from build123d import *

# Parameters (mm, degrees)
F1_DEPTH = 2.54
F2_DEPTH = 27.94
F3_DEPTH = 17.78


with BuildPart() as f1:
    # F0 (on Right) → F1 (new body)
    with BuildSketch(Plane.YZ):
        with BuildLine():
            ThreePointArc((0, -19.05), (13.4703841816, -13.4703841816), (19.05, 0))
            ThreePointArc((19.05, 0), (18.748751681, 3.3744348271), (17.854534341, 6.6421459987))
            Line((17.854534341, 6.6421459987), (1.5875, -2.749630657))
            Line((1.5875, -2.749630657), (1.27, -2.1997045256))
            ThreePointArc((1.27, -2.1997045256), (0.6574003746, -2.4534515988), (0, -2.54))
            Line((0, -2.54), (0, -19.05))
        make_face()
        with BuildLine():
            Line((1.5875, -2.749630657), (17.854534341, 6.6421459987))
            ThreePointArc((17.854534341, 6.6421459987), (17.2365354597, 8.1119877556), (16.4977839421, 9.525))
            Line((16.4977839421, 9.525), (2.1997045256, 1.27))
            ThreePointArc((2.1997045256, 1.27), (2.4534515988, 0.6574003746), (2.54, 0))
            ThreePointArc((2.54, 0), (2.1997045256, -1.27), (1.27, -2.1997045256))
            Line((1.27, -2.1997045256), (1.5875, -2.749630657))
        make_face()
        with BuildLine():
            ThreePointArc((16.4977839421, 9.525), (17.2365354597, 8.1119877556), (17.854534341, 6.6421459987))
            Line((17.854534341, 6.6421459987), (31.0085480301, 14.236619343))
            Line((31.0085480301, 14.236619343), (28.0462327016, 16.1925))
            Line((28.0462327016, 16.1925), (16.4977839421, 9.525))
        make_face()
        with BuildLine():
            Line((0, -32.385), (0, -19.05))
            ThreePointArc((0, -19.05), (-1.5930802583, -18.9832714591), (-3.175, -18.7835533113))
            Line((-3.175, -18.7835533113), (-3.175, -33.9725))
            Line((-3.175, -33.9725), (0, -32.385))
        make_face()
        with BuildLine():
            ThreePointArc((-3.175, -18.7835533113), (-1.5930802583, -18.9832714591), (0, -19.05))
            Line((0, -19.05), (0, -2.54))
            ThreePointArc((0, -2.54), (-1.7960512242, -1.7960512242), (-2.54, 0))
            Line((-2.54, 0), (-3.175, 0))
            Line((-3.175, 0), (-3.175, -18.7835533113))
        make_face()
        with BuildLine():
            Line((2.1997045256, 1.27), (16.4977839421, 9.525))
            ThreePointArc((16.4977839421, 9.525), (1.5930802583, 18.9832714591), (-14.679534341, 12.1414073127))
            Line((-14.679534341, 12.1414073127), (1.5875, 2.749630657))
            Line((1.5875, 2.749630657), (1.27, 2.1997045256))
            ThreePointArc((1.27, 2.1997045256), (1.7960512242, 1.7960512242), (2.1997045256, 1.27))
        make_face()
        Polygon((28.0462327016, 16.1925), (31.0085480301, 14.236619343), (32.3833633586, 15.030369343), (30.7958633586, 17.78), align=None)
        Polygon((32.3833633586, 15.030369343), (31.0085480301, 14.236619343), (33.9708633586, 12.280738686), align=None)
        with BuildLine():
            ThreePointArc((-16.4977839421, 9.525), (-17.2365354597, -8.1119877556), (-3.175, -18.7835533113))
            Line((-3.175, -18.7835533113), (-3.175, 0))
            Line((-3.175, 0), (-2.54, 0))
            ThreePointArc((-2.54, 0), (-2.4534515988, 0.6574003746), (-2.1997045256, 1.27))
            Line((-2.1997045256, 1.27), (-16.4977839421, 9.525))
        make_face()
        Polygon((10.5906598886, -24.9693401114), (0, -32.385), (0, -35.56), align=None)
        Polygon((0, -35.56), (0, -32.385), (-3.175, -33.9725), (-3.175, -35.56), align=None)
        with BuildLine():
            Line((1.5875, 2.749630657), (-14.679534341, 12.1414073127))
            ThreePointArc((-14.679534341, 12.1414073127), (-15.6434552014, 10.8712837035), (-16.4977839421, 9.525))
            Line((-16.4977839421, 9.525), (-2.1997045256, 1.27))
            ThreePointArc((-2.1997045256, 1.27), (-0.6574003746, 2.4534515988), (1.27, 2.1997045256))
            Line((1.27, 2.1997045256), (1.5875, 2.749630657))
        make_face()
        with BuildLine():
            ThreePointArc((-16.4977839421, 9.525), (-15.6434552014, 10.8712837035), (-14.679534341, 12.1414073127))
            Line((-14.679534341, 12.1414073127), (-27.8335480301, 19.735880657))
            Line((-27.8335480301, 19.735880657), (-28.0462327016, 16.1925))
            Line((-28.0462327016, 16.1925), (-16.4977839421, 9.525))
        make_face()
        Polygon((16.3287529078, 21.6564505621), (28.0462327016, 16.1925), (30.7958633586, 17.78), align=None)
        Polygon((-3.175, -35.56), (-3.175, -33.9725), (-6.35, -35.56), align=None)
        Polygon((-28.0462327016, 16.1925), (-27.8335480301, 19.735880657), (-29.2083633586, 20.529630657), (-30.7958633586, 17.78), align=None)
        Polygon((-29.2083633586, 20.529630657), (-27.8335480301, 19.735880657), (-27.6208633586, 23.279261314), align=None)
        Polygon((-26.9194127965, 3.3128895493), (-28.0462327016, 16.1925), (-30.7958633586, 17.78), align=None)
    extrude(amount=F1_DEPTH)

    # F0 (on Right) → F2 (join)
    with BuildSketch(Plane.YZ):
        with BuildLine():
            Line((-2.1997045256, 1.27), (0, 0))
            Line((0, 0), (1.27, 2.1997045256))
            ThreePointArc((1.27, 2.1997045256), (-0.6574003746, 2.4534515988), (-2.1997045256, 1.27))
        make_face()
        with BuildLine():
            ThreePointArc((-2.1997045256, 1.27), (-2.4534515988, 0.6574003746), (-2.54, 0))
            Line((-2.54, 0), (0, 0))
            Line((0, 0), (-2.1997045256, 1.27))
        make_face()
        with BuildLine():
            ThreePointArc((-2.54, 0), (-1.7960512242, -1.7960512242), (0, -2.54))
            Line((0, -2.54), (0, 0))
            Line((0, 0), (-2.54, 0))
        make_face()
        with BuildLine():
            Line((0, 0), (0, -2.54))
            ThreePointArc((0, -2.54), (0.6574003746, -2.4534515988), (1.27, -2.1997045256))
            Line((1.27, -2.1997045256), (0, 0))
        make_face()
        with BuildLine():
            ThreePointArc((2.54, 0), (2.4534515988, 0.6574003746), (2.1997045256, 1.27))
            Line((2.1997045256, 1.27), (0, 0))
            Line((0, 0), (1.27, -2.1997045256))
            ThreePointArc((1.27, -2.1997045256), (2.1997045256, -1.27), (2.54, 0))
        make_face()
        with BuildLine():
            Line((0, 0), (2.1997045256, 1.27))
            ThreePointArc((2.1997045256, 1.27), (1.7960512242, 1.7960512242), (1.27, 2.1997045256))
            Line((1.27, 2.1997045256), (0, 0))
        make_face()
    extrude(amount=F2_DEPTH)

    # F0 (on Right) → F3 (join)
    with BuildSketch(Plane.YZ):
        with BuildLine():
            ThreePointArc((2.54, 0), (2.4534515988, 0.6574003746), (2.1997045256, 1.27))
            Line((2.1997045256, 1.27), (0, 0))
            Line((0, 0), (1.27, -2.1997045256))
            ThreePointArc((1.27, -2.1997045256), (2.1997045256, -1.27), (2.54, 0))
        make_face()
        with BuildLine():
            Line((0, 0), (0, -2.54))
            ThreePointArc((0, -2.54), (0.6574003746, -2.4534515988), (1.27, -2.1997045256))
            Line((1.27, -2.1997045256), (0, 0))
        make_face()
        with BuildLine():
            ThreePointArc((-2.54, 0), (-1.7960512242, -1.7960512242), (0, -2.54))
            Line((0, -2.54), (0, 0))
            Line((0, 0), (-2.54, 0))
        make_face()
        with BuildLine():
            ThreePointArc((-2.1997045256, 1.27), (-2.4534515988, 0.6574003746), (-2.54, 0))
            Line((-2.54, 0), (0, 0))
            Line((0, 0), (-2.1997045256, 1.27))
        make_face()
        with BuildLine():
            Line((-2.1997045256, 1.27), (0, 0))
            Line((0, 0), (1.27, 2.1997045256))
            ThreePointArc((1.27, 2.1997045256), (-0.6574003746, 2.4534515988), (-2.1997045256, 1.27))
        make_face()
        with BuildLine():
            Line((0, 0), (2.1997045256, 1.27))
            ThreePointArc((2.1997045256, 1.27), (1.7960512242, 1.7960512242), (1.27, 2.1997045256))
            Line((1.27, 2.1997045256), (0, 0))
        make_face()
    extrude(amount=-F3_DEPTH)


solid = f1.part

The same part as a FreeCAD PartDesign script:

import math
import FreeCAD as App
import Part
import Sketcher

V = App.Vector
Q = App.Units.Quantity

doc = App.newDocument("Part")
params = doc.addObject("Spreadsheet::Sheet", "Params")
for row, (alias, value) in enumerate([
    ("sketch1_radius", "0.1 in"),
    ("sketch1_radius2", "0.75 in"),
    ("sketch1_width", "0.25 in"),
    ("sketch1_length", "0.25 in"),
    ("sketch1_height", "0.525 in"),
    ("pad1_length", "0.1 in"),
    ("sketch2_radius", "0.1 in"),
    ("pad2_length", "1.1 in"),
    ("sketch3_radius", "0.1 in"),
    ("pad3_length", "0.7 in"),
], start=1):
    params.set(f"A{row}", alias)
    params.set(f"B{row}", "=" + value)
    params.setAlias(f"B{row}", alias)

body = doc.addObject("PartDesign::Body", "Body")

# Sketch on YZ plane
sketch1 = doc.addObject("Sketcher::SketchObject", "Sketch")
body.addObject(sketch1)
sketch1.AttachmentSupport = (doc.YZ_Plane, [""])
sketch1.MapMode = "FlatFace"
sketch1.addGeometry([
    Part.ArcOfCircle(Part.Circle(V(0, 0, 0), V(0, 0, 1), 19.1), math.radians(-90), math.radians(0)),  # 0
    Part.ArcOfCircle(Part.Circle(V(0, 0, 0), V(0, 0, 1), 19.1), math.radians(0), math.radians(20)),  # 1
    Part.LineSegment(V(17.9, 6.6, 0), V(31, 14.2, 0)),  # 2
    Part.LineSegment(V(31, 14.2, 0), V(34, 12.3, 0)),  # 3
    Part.LineSegment(V(34, 12.3, 0), V(30.8, 17.8, 0)),  # 4
    Part.LineSegment(V(30.8, 17.8, 0), V(16.3, 21.7, 0)),  # 5
    Part.LineSegment(V(16.3, 21.7, 0), V(28, 16.2, 0)),  # 6
    Part.LineSegment(V(28, 16.2, 0), V(16.5, 9.5, 0)),  # 7
    Part.ArcOfCircle(Part.Circle(V(0, 0, 0), V(0, 0, 1), 19.1), math.radians(30), math.radians(140)),  # 8
    Part.LineSegment(V(-14.7, 12.1, 0), V(-27.8, 19.7, 0)),  # 9
    Part.LineSegment(V(-27.8, 19.7, 0), V(-27.6, 23.3, 0)),  # 10
    Part.LineSegment(V(-27.6, 23.3, 0), V(-30.8, 17.8, 0)),  # 11
    Part.LineSegment(V(-30.8, 17.8, 0), V(-26.9, 3.3, 0)),  # 12
    Part.LineSegment(V(-26.9, 3.3, 0), V(-28, 16.2, 0)),  # 13
    Part.LineSegment(V(-28, 16.2, 0), V(-16.5, 9.5, 0)),  # 14
    Part.ArcOfCircle(Part.Circle(V(0, 0, 0), V(0, 0, 1), 19.1), math.radians(150), math.radians(260)),  # 15
    Part.LineSegment(V(-3.2, -18.8, 0), V(-3.2, -34, 0)),  # 16
    Part.LineSegment(V(-3.2, -34, 0), V(-6.3, -35.6, 0)),  # 17
    Part.LineSegment(V(-6.3, -35.6, 0), V(0, -35.6, 0)),  # 18
    Part.LineSegment(V(0, -35.6, 0), V(10.6, -25, 0)),  # 19
    Part.LineSegment(V(10.6, -25, 0), V(0, -32.4, 0)),  # 20
    Part.LineSegment(V(0, -32.4, 0), V(0, -19.1, 0)),  # 21
    Part.ArcOfCircle(Part.Circle(V(0, 0, 0), V(0, 0, 1), 2.5), math.radians(30), math.radians(60)),  # 22
    Part.ArcOfCircle(Part.Circle(V(0, 0, 0), V(0, 0, 1), 2.5), math.radians(0), math.radians(30)),  # 23
    Part.ArcOfCircle(Part.Circle(V(0, 0, 0), V(0, 0, 1), 2.5), math.radians(-60), math.radians(0)),  # 24
    Part.ArcOfCircle(Part.Circle(V(0, 0, 0), V(0, 0, 1), 2.5), math.radians(-90), math.radians(-60)),  # 25
    Part.ArcOfCircle(Part.Circle(V(0, 0, 0), V(0, 0, 1), 2.5), math.radians(180), math.radians(270)),  # 26
    Part.ArcOfCircle(Part.Circle(V(0, 0, 0), V(0, 0, 1), 2.5), math.radians(150), math.radians(180)),  # 27
    Part.ArcOfCircle(Part.Circle(V(0, 0, 0), V(0, 0, 1), 2.5), math.radians(60), math.radians(150)),  # 28
], False)
sketch1.addConstraint([
    Sketcher.Constraint("Tangent", 0, 2, 1, 1),
    Sketcher.Constraint("Coincident", 1, 2, 2, 1),
    Sketcher.Constraint("Coincident", 2, 2, 3, 1),
    Sketcher.Constraint("Coincident", 3, 2, 4, 1),
    Sketcher.Constraint("Coincident", 4, 2, 5, 1),
    Sketcher.Constraint("Coincident", 5, 2, 6, 1),
    Sketcher.Constraint("Coincident", 6, 2, 7, 1),
    Sketcher.Constraint("Coincident", 7, 2, 8, 1),
    Sketcher.Constraint("Coincident", 8, 2, 9, 1),
    Sketcher.Constraint("Coincident", 9, 2, 10, 1),
    Sketcher.Constraint("Coincident", 10, 2, 11, 1),
    Sketcher.Constraint("Coincident", 11, 2, 12, 1),
    Sketcher.Constraint("Coincident", 12, 2, 13, 1),
    Sketcher.Constraint("Coincident", 13, 2, 14, 1),
    Sketcher.Constraint("Coincident", 14, 2, 15, 1),
    Sketcher.Constraint("Coincident", 15, 2, 16, 1),
    Sketcher.Constraint("Coincident", 16, 2, 17, 1),
    Sketcher.Constraint("Coincident", 17, 2, 18, 1),
    Sketcher.Constraint("Coincident", 18, 2, 19, 1),
    Sketcher.Constraint("Coincident", 19, 2, 20, 1),
    Sketcher.Constraint("Coincident", 20, 2, 21, 1),
    Sketcher.Constraint("Coincident", 21, 2, 0, 1),
    Sketcher.Constraint("Tangent", 22, 1, 23, 2),
    Sketcher.Constraint("Tangent", 23, 1, 24, 2),
    Sketcher.Constraint("Tangent", 24, 1, 25, 2),
    Sketcher.Constraint("Tangent", 25, 1, 26, 2),
    Sketcher.Constraint("Tangent", 26, 1, 27, 2),
    Sketcher.Constraint("Tangent", 27, 1, 28, 2),
    Sketcher.Constraint("Tangent", 28, 1, 22, 2),
    Sketcher.Constraint("Vertical", 16),
    Sketcher.Constraint("Horizontal", 18),
    Sketcher.Constraint("Vertical", 21),
    Sketcher.Constraint("Coincident", 0, 3, -1, 1),
    Sketcher.Constraint("Coincident", 8, 3, -1, 1),
    Sketcher.Constraint("Coincident", 15, 3, -1, 1),
    Sketcher.Constraint("Coincident", 22, 3, -1, 1),
    Sketcher.Constraint("Coincident", 24, 3, -1, 1),
    Sketcher.Constraint("Coincident", 26, 3, -1, 1),
    Sketcher.Constraint("Equal", 0, 1),
    Sketcher.Constraint("Equal", 1, 8),
    Sketcher.Constraint("Equal", 8, 15),
    Sketcher.Constraint("Symmetric", 4, 2, 11, 2, -2),
    Sketcher.Constraint("Symmetric", 6, 2, 13, 2, -2),
    Sketcher.Constraint("PointOnObject", 0, 2, -1),
    Sketcher.Constraint("PointOnObject", 18, 2, -2),
    Sketcher.Constraint("PointOnObject", 20, 2, -2),
    Sketcher.Constraint("PointOnObject", 23, 1, -1),
    Sketcher.Constraint("PointOnObject", 25, 1, -2),
    Sketcher.Constraint("PointOnObject", 26, 1, -1),
    Sketcher.Constraint("Perpendicular", 2, 4),
    Sketcher.Constraint("Perpendicular", 4, 7),
    Sketcher.Constraint("Perpendicular", 9, 11),
    Sketcher.Constraint("Perpendicular", 11, 14),
    Sketcher.Constraint("Horizontal", 7, 2, 14, 2),
    Sketcher.Constraint("Horizontal", 22, 1, 27, 1),
    Sketcher.Constraint("Vertical", 24, 1, 28, 1),
    Sketcher.Constraint("Equal", 2, 9),
    Sketcher.Constraint("Equal", 3, 10),
    Sketcher.Constraint("Equal", 4, 11),
    Sketcher.Constraint("Equal", 5, 12),
    Sketcher.Constraint("Equal", 6, 13),
    Sketcher.Constraint("Equal", 10, 17),
    Sketcher.Constraint("Equal", 12, 19),
    Sketcher.Constraint("Equal", 13, 20),
    Sketcher.Constraint("Radius", 22, Q("0.1 in")),
    Sketcher.Constraint("Radius", 0, Q("0.75 in")),
    Sketcher.Constraint("Angle", 2, Q("30 deg")),
    Sketcher.Constraint("Angle", 5, Q("165 deg")),
    Sketcher.Constraint("Angle", 6, Q("-25 deg")),
    Sketcher.Constraint("Angle", 12, Q("-75 deg")),
    Sketcher.Constraint("Angle", 19, Q("45 deg")),
    Sketcher.Constraint("DistanceX", 18, 1, 18, 2, Q("0.25 in")),
    Sketcher.Constraint("DistanceY", -1, 1, 4, 2, Q("0.7 in")),
    Sketcher.Constraint("DistanceY", 17, 2, -1, 1, Q("1.4 in")),
    Sketcher.Constraint("Distance", 4, Q("0.25 in")),
    Sketcher.Constraint("DistanceY", 21, 1, 21, 2, Q("0.525 in")),
    Sketcher.Constraint("DistanceY", -1, 1, 22, 1, Q("0.05 in")),
    Sketcher.Constraint("DistanceX", -1, 1, 24, 1, Q("0.05 in")),
    Sketcher.Constraint("Distance", 7, Q("0.525 in")),
    Sketcher.Constraint("DistanceX", 15, 2, -1, 1, Q("0.125 in")),
    Sketcher.Constraint("DistanceY", 17, 2, 16, 2, Q("0.0625 in")),
    Sketcher.Constraint("DistanceX", 1, 2, 6, 2, Q("10.191698 mm")),
])
sketch1.setExpression("Constraints[64]", "Params.sketch1_radius")
sketch1.setExpression("Constraints[65]", "Params.sketch1_radius2")
sketch1.setExpression("Constraints[71]", "Params.sketch1_width")
sketch1.setExpression("Constraints[74]", "Params.sketch1_length")
sketch1.setExpression("Constraints[75]", "Params.sketch1_height")
pad1 = doc.addObject("PartDesign::Pad", "Pad")
body.addObject(pad1)
pad1.Profile = sketch1
pad1.setExpression("Length", "Params.pad1_length")

# Sketch on YZ plane
sketch2 = doc.addObject("Sketcher::SketchObject", "Sketch001")
body.addObject(sketch2)
sketch2.AttachmentSupport = (doc.YZ_Plane, [""])
sketch2.MapMode = "FlatFace"
sketch2.addGeometry([
    Part.ArcOfCircle(Part.Circle(V(0, 0, 0), V(0, 0, 1), 2.5), math.radians(60), math.radians(150)),  # 0
    Part.ArcOfCircle(Part.Circle(V(0, 0, 0), V(0, 0, 1), 2.5), math.radians(150), math.radians(180)),  # 1
    Part.ArcOfCircle(Part.Circle(V(0, 0, 0), V(0, 0, 1), 2.5), math.radians(180), math.radians(270)),  # 2
    Part.ArcOfCircle(Part.Circle(V(0, 0, 0), V(0, 0, 1), 2.5), math.radians(-90), math.radians(-60)),  # 3
    Part.ArcOfCircle(Part.Circle(V(0, 0, 0), V(0, 0, 1), 2.5), math.radians(-60), math.radians(0)),  # 4
    Part.ArcOfCircle(Part.Circle(V(0, 0, 0), V(0, 0, 1), 2.5), math.radians(0), math.radians(30)),  # 5
    Part.ArcOfCircle(Part.Circle(V(0, 0, 0), V(0, 0, 1), 2.5), math.radians(30), math.radians(60)),  # 6
], False)
sketch2.addConstraint([
    Sketcher.Constraint("Tangent", 0, 2, 1, 1),
    Sketcher.Constraint("Tangent", 1, 2, 2, 1),
    Sketcher.Constraint("Tangent", 2, 2, 3, 1),
    Sketcher.Constraint("Tangent", 3, 2, 4, 1),
    Sketcher.Constraint("Tangent", 4, 2, 5, 1),
    Sketcher.Constraint("Tangent", 5, 2, 6, 1),
    Sketcher.Constraint("Tangent", 6, 2, 0, 1),
    Sketcher.Constraint("Coincident", 0, 3, -1, 1),
    Sketcher.Constraint("Coincident", 2, 3, -1, 1),
    Sketcher.Constraint("Coincident", 4, 3, -1, 1),
    Sketcher.Constraint("PointOnObject", 1, 2, -1),
    Sketcher.Constraint("PointOnObject", 2, 2, -2),
    Sketcher.Constraint("PointOnObject", 4, 2, -1),
    Sketcher.Constraint("Horizontal", 0, 2, 5, 2),
    Sketcher.Constraint("Vertical", 3, 2, 6, 2),
    Sketcher.Constraint("Radius", 0, Q("0.1 in")),
    Sketcher.Constraint("DistanceY", -1, 1, 0, 2, Q("0.05 in")),
    Sketcher.Constraint("DistanceX", -1, 1, 3, 2, Q("0.05 in")),
])
sketch2.setExpression("Constraints[15]", "Params.sketch2_radius")
pad2 = doc.addObject("PartDesign::Pad", "Pad001")
body.addObject(pad2)
pad2.Profile = sketch2
pad2.setExpression("Length", "Params.pad2_length")

# Sketch on YZ plane
sketch3 = doc.addObject("Sketcher::SketchObject", "Sketch002")
body.addObject(sketch3)
sketch3.AttachmentSupport = (doc.YZ_Plane, [""])
sketch3.MapMode = "FlatFace"
sketch3.addGeometry([
    Part.ArcOfCircle(Part.Circle(V(0, 0, 0), V(0, 0, 1), 2.5), math.radians(0), math.radians(30)),  # 0
    Part.ArcOfCircle(Part.Circle(V(0, 0, 0), V(0, 0, 1), 2.5), math.radians(30), math.radians(60)),  # 1
    Part.ArcOfCircle(Part.Circle(V(0, 0, 0), V(0, 0, 1), 2.5), math.radians(60), math.radians(150)),  # 2
    Part.ArcOfCircle(Part.Circle(V(0, 0, 0), V(0, 0, 1), 2.5), math.radians(150), math.radians(180)),  # 3
    Part.ArcOfCircle(Part.Circle(V(0, 0, 0), V(0, 0, 1), 2.5), math.radians(180), math.radians(270)),  # 4
    Part.ArcOfCircle(Part.Circle(V(0, 0, 0), V(0, 0, 1), 2.5), math.radians(-90), math.radians(-60)),  # 5
    Part.ArcOfCircle(Part.Circle(V(0, 0, 0), V(0, 0, 1), 2.5), math.radians(-60), math.radians(0)),  # 6
], False)
sketch3.addConstraint([
    Sketcher.Constraint("Tangent", 0, 2, 1, 1),
    Sketcher.Constraint("Tangent", 1, 2, 2, 1),
    Sketcher.Constraint("Tangent", 2, 2, 3, 1),
    Sketcher.Constraint("Tangent", 3, 2, 4, 1),
    Sketcher.Constraint("Tangent", 4, 2, 5, 1),
    Sketcher.Constraint("Tangent", 5, 2, 6, 1),
    Sketcher.Constraint("Tangent", 6, 2, 0, 1),
    Sketcher.Constraint("Coincident", 0, 3, -1, 1),
    Sketcher.Constraint("Coincident", 2, 3, -1, 1),
    Sketcher.Constraint("Coincident", 4, 3, -1, 1),
    Sketcher.Constraint("PointOnObject", 3, 2, -1),
    Sketcher.Constraint("PointOnObject", 4, 2, -2),
    Sketcher.Constraint("PointOnObject", 6, 2, -1),
    Sketcher.Constraint("Horizontal", 0, 2, 2, 2),
    Sketcher.Constraint("Vertical", 1, 2, 5, 2),
    Sketcher.Constraint("Radius", 0, Q("0.1 in")),
    Sketcher.Constraint("DistanceY", -1, 1, 0, 2, Q("0.05 in")),
    Sketcher.Constraint("DistanceX", -1, 1, 1, 2, Q("0.05 in")),
])
sketch3.setExpression("Constraints[15]", "Params.sketch3_radius")
pad3 = doc.addObject("PartDesign::Pad", "Pad002")
body.addObject(pad3)
pad3.Profile = sketch3
pad3.setExpression("Length", "Params.pad3_length")
pad3.Reversed = True

doc.recompute()
